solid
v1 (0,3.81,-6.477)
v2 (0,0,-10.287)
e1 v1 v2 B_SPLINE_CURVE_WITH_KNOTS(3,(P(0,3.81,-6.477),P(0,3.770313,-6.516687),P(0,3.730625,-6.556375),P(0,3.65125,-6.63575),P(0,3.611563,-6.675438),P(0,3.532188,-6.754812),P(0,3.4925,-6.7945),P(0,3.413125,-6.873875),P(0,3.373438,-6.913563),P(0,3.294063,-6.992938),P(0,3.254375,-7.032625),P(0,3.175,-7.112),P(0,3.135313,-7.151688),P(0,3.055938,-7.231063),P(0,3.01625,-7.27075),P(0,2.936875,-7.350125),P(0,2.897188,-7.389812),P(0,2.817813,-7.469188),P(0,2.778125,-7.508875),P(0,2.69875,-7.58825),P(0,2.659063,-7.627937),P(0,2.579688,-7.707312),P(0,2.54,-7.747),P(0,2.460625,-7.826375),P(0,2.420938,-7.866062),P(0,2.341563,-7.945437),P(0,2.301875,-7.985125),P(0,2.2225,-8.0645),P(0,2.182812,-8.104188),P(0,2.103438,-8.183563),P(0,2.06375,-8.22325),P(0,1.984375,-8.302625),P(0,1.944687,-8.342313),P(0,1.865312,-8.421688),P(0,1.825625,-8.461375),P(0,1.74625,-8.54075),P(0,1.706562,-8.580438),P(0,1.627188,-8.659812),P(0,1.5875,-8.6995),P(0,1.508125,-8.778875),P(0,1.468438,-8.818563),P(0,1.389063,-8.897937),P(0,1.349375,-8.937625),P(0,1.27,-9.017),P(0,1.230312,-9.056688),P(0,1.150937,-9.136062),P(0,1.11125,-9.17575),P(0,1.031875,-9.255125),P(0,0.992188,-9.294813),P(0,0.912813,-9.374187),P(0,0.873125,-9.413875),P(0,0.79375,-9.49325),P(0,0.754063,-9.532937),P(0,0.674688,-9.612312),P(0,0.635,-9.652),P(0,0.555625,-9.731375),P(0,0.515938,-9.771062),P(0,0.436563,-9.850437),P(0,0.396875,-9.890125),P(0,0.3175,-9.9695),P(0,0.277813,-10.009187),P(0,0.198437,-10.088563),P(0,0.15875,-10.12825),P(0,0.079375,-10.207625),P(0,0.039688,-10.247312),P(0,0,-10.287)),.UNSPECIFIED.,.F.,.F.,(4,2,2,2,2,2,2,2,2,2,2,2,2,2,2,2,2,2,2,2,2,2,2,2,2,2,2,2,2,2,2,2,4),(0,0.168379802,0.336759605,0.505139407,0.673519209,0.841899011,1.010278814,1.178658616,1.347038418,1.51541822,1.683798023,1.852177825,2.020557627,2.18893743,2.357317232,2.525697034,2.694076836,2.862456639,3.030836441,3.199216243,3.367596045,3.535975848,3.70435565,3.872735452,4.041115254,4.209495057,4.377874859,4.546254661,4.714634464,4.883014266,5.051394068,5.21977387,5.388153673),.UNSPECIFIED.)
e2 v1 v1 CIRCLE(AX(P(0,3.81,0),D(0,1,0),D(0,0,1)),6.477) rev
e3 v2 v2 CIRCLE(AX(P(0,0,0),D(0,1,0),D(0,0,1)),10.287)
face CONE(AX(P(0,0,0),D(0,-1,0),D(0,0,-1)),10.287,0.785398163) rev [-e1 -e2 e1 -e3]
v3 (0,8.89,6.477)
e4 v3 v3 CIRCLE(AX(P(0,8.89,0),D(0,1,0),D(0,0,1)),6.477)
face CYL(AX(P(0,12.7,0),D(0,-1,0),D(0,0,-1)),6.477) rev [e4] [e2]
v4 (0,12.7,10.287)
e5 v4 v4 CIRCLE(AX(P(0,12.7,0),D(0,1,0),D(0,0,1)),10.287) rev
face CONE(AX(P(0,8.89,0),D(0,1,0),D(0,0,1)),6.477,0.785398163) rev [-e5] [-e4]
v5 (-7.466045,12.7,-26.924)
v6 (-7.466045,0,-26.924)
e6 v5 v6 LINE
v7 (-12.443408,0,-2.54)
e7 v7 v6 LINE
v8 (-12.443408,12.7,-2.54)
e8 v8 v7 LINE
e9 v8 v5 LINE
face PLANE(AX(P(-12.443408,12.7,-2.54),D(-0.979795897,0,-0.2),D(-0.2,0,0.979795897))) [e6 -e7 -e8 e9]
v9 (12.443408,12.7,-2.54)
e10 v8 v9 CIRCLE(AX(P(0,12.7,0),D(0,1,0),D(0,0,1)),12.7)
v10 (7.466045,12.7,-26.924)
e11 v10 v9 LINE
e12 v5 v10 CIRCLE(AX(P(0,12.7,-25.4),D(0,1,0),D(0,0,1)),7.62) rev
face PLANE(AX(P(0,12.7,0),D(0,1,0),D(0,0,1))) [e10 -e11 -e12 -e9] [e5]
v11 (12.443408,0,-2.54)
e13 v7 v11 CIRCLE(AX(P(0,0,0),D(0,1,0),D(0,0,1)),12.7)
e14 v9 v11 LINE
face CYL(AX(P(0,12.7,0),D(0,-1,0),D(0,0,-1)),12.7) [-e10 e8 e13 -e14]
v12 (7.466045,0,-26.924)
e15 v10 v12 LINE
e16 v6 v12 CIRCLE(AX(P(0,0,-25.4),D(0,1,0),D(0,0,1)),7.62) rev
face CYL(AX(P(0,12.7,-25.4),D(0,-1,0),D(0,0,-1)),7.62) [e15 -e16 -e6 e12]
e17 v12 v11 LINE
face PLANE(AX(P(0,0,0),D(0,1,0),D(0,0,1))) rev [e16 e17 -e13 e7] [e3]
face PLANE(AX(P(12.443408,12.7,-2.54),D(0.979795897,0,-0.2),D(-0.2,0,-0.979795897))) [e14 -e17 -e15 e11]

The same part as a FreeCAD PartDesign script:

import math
import FreeCAD as App
import Part
import Sketcher

V = App.Vector
Q = App.Units.Quantity


def edges_at(feature, points):
    """Names of the edges that pass closest to the given points."""
    edges = feature.Shape.Edges
    near = lambda p: min(range(len(edges)), key=lambda i: edges[i].distToShape(Part.Vertex(*p))[0])
    return sorted({f"Edge{near(p) + 1}" for p in points})

doc = App.newDocument("Part")
body = doc.addObject("PartDesign::Body", "Body")

# Sketch on XZ plane
sketch1 = body.newObject("Sketcher::SketchObject", "Sketch")
sketch1.AttachmentSupport = (doc.getObject("XZ_Plane"), [""])
sketch1.MapMode = "FlatFace"
sketch1.addGeometry(Part.LineSegment(V(-7.466045, -26.924, 0), V(-12.443408, -2.54, 0)), False)
sketch1.addGeometry(Part.ArcOfCircle(Part.Circle(V(0, 0, 0), V(0, 0, 1), 12.7), math.radians(-11.536959), math.radians(191.536959)), False)
sketch1.addGeometry(Part.LineSegment(V(12.443408, -2.54, 0), V(7.466045, -26.924, 0)), False)
sketch1.addGeometry(Part.ArcOfCircle(Part.Circle(V(0, -25.4, 0), V(0, 0, 1), 7.62), math.radians(-168.463041), math.radians(-11.536959)), False)
sketch1.addGeometry(Part.Circle(V(0, 0, 0), V(0, 0, 1), 6.477), False)
sketch1.addConstraint(Sketcher.Constraint("Tangent", 0, 2, 1, 2))
sketch1.addConstraint(Sketcher.Constraint("Tangent", 1, 1, 2, 1))
sketch1.addConstraint(Sketcher.Constraint("Tangent", 2, 2, 3, 2))
sketch1.addConstraint(Sketcher.Constraint("Tangent", 3, 1, 0, 1))
sketch1.addConstraint(Sketcher.Constraint("Coincident", 1, 3, -1, 1))
sketch1.addConstraint(Sketcher.Constraint("Coincident", 4, 3, -1, 1))
sketch1.addConstraint(Sketcher.Constraint("PointOnObject", 3, 3, -2))
sketch1.addConstraint(Sketcher.Constraint("Radius", 1, Q("0.5 in")))
sketch1.addConstraint(Sketcher.Constraint("Radius", 3, Q("0.3 in")))
sketch1.addConstraint(Sketcher.Constraint("Diameter", 4, Q("0.51 in")))
sketch1.addConstraint(Sketcher.Constraint("DistanceY", 3, 3, -1, 1, Q("1 in")))
pad1 = body.newObject("PartDesign::Pad", "Pad")
pad1.Profile = sketch1
pad1.Length = Q("0.5 in")
pad1.Reversed = True
doc.recompute()

chamfer = body.newObject("PartDesign::Chamfer", "Chamfer")
chamfer.Base = (pad1, edges_at(pad1, [(0, 12.7, -6.477), (0, 0, -6.477)]))
chamfer.Size = Q("0.15 in")

doc.recompute()
